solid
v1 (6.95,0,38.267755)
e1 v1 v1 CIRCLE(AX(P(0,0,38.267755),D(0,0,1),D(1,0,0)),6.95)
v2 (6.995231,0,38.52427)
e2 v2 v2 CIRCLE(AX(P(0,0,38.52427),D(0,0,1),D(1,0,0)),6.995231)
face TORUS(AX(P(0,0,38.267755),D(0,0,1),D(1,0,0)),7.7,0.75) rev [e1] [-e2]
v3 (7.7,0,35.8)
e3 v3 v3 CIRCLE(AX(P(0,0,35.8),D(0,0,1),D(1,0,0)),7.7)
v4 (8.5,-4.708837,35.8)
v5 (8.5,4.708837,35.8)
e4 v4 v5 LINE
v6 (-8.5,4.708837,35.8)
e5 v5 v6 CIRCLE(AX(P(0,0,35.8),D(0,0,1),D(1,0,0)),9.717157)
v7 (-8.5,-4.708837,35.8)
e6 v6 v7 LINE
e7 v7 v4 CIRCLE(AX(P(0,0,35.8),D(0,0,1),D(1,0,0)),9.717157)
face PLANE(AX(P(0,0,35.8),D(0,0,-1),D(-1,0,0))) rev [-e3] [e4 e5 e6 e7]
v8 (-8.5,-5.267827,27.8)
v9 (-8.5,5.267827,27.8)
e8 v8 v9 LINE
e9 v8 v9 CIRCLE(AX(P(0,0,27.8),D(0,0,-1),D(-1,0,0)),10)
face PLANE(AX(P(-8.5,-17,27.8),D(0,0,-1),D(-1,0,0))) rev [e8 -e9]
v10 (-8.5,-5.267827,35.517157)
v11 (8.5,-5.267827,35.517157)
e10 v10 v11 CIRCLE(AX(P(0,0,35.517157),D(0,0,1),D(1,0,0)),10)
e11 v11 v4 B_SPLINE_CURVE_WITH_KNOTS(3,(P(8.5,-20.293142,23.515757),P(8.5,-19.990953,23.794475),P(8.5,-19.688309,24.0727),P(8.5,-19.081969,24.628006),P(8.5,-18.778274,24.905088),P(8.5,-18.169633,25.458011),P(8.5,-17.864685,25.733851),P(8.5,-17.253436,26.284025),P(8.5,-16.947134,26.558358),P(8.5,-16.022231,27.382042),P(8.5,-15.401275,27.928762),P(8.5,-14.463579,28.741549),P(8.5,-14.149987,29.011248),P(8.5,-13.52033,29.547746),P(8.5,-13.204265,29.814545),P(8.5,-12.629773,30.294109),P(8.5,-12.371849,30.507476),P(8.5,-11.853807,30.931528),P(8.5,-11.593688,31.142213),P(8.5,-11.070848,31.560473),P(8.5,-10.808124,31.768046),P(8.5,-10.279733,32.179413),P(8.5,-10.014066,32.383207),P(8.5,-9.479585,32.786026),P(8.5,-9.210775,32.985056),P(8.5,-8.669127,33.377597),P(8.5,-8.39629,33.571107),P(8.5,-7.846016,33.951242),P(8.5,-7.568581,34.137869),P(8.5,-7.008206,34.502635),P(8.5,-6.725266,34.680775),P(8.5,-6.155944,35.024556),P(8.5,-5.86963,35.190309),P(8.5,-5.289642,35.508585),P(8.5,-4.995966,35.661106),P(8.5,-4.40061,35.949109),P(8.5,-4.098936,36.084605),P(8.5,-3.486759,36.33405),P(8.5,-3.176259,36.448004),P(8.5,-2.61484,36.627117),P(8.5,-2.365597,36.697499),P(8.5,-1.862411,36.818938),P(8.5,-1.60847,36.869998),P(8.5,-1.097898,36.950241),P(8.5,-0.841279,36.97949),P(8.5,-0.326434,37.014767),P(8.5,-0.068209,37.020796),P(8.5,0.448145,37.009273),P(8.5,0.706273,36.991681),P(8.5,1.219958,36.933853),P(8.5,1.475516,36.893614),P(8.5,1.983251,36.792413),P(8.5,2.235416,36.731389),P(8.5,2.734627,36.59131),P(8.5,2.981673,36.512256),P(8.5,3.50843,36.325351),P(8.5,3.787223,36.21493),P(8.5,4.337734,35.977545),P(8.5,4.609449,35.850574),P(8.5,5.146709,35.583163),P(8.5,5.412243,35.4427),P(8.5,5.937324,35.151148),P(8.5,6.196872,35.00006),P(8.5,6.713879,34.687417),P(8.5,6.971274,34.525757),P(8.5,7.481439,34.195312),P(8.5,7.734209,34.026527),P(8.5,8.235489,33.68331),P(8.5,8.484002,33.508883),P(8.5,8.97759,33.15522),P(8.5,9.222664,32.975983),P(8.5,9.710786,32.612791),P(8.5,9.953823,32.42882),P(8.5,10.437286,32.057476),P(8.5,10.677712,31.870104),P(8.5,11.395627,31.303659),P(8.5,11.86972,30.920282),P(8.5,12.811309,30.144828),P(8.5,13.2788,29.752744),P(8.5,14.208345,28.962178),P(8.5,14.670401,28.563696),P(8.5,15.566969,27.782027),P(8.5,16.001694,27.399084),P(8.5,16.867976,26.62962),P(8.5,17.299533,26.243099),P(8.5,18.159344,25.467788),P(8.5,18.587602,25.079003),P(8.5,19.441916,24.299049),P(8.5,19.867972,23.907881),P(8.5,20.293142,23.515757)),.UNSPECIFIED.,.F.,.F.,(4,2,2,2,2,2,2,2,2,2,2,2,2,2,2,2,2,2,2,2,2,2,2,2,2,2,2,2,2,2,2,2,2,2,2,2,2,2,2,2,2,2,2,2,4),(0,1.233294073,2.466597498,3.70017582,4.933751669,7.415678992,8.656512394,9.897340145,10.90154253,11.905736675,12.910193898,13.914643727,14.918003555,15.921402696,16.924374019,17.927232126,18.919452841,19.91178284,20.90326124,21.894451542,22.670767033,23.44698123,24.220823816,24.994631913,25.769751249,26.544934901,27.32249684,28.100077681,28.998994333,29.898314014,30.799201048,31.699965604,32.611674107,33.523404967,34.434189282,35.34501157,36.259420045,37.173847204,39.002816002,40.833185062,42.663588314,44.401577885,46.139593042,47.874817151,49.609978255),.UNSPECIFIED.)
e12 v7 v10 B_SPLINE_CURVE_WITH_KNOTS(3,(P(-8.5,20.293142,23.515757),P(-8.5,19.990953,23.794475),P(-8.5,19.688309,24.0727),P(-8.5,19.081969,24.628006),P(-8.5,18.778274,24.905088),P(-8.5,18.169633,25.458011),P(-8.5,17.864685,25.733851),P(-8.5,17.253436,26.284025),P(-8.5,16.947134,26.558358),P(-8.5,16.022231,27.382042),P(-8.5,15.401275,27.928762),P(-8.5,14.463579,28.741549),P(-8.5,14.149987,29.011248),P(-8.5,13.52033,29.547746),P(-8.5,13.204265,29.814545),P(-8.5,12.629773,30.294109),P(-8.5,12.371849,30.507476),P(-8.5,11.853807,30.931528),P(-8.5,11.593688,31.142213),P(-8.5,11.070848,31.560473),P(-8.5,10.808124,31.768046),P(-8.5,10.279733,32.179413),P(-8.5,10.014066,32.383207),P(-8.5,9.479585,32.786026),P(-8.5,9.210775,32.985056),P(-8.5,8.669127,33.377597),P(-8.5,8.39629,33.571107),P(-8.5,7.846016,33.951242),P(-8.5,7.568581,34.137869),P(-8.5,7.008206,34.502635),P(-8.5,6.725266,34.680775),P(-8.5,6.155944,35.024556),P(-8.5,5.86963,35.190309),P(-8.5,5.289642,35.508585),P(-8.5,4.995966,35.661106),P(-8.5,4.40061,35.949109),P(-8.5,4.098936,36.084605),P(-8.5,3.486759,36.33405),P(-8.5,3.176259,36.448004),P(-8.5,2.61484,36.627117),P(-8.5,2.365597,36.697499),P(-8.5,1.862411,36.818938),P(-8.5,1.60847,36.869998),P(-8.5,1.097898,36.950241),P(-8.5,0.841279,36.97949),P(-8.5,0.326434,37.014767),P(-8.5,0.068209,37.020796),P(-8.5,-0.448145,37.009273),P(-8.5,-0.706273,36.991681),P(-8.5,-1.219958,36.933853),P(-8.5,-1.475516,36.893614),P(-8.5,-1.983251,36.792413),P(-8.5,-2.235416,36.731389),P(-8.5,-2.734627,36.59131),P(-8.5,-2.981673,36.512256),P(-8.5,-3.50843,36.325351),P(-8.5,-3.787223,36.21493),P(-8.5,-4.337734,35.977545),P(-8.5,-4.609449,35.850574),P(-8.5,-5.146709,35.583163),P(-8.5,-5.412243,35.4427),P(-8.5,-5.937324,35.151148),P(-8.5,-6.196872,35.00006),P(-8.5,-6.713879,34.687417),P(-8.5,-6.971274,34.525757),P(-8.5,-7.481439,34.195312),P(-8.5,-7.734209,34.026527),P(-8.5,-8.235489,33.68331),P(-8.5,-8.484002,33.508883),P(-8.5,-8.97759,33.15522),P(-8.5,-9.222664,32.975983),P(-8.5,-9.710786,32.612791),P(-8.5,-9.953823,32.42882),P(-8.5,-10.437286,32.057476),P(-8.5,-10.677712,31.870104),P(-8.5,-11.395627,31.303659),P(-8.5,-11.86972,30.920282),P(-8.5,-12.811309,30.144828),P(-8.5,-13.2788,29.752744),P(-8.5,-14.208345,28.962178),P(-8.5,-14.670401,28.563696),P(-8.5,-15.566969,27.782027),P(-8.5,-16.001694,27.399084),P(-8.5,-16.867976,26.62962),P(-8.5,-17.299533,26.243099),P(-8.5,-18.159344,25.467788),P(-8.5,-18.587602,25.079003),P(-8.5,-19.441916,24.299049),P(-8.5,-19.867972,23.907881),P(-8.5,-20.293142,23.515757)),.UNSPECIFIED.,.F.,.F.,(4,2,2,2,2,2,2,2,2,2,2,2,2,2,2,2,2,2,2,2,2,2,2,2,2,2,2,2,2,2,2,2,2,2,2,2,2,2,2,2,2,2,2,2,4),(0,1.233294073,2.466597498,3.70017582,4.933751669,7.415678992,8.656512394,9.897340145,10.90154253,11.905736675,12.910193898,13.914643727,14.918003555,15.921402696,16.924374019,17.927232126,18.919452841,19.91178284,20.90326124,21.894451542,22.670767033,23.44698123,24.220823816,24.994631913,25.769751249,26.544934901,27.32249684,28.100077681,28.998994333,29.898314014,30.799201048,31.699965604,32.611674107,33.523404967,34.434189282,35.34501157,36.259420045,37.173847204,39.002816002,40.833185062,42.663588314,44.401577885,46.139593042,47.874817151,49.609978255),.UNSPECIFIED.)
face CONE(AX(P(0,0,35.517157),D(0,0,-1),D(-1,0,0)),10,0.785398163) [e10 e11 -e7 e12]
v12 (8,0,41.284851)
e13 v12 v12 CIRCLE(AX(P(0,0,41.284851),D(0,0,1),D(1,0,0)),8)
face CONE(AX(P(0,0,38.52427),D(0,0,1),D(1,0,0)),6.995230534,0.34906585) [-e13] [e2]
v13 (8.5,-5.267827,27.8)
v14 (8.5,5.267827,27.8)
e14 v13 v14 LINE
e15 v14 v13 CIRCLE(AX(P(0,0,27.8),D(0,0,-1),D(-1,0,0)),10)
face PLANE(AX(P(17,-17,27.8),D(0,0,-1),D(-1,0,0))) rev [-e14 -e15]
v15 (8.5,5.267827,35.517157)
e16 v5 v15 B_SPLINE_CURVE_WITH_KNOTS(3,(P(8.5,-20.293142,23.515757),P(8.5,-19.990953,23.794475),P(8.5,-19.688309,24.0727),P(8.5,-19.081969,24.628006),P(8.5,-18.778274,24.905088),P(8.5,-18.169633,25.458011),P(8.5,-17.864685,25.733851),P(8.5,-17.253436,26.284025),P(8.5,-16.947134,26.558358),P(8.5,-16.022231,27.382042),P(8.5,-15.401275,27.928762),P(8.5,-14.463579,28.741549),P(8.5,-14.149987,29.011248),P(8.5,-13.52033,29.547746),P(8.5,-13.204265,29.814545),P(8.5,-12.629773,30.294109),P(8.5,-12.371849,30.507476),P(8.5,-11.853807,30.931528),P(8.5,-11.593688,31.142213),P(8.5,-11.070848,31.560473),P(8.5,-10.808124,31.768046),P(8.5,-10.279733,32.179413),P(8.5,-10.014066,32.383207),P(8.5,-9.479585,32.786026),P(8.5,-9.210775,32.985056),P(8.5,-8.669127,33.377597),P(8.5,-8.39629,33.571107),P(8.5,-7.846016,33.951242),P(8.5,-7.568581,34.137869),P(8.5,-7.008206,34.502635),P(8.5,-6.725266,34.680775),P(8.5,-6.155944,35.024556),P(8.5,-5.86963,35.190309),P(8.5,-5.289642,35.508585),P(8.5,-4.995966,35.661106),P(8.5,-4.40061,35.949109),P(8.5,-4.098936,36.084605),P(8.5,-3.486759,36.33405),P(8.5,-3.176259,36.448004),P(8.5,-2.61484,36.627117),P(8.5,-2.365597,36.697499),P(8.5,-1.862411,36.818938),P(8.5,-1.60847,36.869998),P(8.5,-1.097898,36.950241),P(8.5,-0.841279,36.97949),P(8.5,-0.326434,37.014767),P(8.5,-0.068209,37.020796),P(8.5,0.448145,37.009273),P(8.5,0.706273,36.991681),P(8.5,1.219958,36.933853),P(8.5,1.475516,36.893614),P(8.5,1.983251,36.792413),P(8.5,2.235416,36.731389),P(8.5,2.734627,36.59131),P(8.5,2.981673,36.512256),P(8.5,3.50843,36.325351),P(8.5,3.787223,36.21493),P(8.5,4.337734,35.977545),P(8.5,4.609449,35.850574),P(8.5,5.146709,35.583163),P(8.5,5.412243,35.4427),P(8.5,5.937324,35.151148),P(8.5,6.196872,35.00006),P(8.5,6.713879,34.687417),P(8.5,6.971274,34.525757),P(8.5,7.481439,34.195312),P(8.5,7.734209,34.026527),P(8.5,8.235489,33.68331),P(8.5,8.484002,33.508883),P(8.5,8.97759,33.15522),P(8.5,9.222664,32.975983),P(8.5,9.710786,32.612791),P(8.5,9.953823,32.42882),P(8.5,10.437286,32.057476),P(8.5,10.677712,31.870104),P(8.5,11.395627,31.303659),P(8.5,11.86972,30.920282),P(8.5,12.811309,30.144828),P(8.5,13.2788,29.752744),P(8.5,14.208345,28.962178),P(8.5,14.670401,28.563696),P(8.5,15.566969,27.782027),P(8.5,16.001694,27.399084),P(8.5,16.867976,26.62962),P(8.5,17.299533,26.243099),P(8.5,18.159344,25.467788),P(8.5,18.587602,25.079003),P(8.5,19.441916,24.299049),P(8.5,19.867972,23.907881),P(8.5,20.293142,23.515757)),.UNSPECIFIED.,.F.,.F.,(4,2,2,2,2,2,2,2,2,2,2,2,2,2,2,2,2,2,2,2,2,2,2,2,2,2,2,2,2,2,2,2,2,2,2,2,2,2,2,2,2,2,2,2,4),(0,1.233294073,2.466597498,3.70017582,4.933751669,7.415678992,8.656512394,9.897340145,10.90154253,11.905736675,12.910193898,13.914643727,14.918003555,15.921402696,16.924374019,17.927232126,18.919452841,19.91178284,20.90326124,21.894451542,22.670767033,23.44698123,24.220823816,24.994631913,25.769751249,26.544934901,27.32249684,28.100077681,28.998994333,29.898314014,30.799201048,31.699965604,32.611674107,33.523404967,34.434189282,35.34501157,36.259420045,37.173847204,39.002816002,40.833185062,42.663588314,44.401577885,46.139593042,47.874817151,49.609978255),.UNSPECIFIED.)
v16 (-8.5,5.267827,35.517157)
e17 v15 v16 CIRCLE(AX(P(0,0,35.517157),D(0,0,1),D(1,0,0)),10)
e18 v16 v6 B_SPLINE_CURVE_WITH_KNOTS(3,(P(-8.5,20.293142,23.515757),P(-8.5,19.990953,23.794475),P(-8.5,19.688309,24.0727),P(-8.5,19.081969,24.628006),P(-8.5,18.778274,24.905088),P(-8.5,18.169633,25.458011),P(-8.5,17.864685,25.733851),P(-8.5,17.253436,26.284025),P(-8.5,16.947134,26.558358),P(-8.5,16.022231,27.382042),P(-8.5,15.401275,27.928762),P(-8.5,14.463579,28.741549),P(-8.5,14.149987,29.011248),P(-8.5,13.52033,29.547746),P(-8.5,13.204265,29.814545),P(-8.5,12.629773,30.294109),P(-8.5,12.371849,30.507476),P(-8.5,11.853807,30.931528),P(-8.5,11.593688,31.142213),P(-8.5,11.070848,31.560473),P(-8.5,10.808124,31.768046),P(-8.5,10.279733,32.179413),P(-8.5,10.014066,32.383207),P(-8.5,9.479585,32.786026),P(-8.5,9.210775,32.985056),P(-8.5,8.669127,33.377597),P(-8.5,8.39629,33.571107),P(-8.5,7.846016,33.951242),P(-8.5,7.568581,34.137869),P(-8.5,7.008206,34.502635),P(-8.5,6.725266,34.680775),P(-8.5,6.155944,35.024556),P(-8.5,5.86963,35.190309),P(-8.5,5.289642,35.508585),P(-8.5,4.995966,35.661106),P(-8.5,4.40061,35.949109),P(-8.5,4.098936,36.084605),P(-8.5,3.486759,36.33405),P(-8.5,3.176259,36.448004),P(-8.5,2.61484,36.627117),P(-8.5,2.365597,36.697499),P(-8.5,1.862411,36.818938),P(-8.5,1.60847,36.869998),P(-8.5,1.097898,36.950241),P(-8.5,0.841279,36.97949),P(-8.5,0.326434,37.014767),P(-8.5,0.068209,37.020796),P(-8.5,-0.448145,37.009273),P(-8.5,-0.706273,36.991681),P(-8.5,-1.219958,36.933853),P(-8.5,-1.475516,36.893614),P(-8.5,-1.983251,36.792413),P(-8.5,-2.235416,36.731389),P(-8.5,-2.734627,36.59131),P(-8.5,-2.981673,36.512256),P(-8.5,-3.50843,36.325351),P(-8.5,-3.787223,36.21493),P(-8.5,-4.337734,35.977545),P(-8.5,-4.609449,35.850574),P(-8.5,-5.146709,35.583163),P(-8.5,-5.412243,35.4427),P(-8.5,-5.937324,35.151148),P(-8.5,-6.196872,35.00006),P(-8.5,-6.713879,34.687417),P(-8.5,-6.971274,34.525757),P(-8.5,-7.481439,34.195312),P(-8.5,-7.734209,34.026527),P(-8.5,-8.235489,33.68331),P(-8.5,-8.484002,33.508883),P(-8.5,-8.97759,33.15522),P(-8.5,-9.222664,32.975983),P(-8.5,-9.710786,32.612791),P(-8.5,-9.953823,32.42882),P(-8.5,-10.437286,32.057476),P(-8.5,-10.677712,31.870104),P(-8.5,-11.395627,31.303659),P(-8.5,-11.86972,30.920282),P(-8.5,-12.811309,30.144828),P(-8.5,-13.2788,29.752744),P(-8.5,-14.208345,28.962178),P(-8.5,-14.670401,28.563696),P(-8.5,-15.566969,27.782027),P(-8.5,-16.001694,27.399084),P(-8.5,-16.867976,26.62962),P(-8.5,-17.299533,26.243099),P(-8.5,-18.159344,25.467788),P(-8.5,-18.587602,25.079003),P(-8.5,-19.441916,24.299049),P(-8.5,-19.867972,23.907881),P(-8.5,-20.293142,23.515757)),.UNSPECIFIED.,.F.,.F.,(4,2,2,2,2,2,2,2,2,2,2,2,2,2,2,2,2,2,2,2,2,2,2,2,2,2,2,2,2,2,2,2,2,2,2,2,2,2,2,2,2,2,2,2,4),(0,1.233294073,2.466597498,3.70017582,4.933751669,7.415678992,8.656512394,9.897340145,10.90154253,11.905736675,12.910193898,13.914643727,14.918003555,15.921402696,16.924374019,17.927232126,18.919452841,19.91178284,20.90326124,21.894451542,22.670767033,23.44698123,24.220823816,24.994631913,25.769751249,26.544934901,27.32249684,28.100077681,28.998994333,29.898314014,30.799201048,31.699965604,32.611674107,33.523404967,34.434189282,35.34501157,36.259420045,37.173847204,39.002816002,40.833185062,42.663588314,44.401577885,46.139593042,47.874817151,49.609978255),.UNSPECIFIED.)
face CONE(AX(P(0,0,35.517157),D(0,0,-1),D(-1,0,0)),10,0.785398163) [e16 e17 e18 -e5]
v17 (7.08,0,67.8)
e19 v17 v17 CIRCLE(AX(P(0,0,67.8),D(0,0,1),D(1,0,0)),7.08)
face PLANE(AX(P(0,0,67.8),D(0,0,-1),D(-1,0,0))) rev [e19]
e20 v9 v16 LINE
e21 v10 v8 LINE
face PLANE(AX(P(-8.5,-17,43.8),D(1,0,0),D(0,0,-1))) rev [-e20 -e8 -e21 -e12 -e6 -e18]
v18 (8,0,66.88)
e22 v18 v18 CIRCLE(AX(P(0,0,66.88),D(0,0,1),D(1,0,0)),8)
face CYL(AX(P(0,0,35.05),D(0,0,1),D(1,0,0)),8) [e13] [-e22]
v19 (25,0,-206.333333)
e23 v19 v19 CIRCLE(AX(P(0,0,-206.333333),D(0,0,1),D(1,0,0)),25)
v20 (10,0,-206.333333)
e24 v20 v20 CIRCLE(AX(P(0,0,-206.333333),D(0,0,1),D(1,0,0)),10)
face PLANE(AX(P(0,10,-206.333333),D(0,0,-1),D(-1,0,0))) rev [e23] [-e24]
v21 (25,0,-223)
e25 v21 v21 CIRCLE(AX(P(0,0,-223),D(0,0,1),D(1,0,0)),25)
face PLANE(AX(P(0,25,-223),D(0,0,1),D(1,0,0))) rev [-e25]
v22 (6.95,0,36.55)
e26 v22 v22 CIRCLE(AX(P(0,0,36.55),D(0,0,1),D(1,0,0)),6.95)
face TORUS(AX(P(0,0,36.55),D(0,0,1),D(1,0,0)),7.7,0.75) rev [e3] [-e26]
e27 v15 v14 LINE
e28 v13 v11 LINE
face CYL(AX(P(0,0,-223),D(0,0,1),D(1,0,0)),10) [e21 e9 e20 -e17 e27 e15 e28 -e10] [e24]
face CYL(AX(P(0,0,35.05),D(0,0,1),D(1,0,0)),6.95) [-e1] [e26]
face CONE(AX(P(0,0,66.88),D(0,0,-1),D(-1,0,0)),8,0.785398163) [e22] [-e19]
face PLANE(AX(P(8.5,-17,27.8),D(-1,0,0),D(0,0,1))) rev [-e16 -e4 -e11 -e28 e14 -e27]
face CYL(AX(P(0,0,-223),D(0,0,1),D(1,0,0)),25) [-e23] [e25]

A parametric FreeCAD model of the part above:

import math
import FreeCAD as App
import Part
import Sketcher
from FreeCAD import Vector
Q = App.Units.Quantity


def add_polygon(sketch, points):
    """Adds a closed chain of lines whose ends are joined by coincident constraints."""
    first, n = sketch.GeometryCount, len(points)
    for a, b in zip(points, points[1:] + points[:1]):
        sketch.addGeometry(Part.LineSegment(App.Vector(*a, 0), App.Vector(*b, 0)), False)
    for i in range(n):
        sketch.addConstraint(Sketcher.Constraint("Coincident", first + i, 2, first + (i + 1) % n, 1))

doc = App.newDocument("Part")
body = doc.addObject("PartDesign::Body", "Body")

sketch1 = body.newObject("Sketcher::SketchObject", "Sketch")
sketch1.AttachmentSupport = (doc.getObject("YZ_Plane"), [""])
sketch1.MapMode = "FlatFace"
add_polygon(sketch1, [(9.72, 35.8), (0, 35.8), (0, -223), (25, -223), (25, -206.33), (10, -206.33), (10, 35.52)])
sketch1.addConstraint(Sketcher.Constraint("Horizontal", 0))
sketch1.addConstraint(Sketcher.Constraint("Vertical", 1))
sketch1.addConstraint(Sketcher.Constraint("Horizontal", 2))
sketch1.addConstraint(Sketcher.Constraint("Vertical", 3))
sketch1.addConstraint(Sketcher.Constraint("Horizontal", 4))
sketch1.addConstraint(Sketcher.Constraint("Vertical", 5))
sketch1.addConstraint(Sketcher.Constraint("PointOnObject", 0, 2, -2))
sketch1.addConstraint(Sketcher.Constraint("DistanceX", 2, 1, 2, 2, 25.0))
sketch1.addConstraint(Sketcher.Constraint("DistanceX", 4, 2, 4, 1, 15.0))
sketch1.addConstraint(Sketcher.Constraint("Angle", 6, Q("135 deg")))
sketch1.addConstraint(Sketcher.Constraint("DistanceY", 1, 2, 1, 1, 258.8))
sketch1.addConstraint(Sketcher.Constraint("DistanceY", 1, 2, -1, 1, 223.0))
sketch1.addConstraint(Sketcher.Constraint("Distance", 6, 0.4))
sketch1.addConstraint(Sketcher.Constraint("DistanceY", 5, 1, 5, 2, 241.850491))
revolution = body.newObject("PartDesign::Revolution", "Revolution")
revolution.Profile = sketch1
revolution.ReferenceAxis = (sketch1, ["V_Axis"])
revolution.Angle = 360

sketch2 = body.newObject("Sketcher::SketchObject", "Sketch001")
sketch2.AttachmentSupport = (doc.getObject("XZ_Plane"), [""])
sketch2.MapMode = "FlatFace"
add_polygon(sketch2, [(-17, 62), (17, 62), (17, 28), (8, 28), (8, 44), (-8, 44), (-8, 28), (-17, 28)])
sketch2.addConstraint(Sketcher.Constraint("Horizontal", 0))
sketch2.addConstraint(Sketcher.Constraint("Vertical", 1))
sketch2.addConstraint(Sketcher.Constraint("Horizontal", 2))
sketch2.addConstraint(Sketcher.Constraint("Vertical", 3))
sketch2.addConstraint(Sketcher.Constraint("Horizontal", 4))
sketch2.addConstraint(Sketcher.Constraint("Vertical", 5))
sketch2.addConstraint(Sketcher.Constraint("Horizontal", 6))
sketch2.addConstraint(Sketcher.Constraint("Vertical", 7))
sketch2.addConstraint(Sketcher.Constraint("Symmetric", 2, 2, 5, 2, -2))
sketch2.addConstraint(Sketcher.Constraint("Equal", 2, 6))
sketch2.addConstraint(Sketcher.Constraint("Equal", 0, 1))
sketch2.addConstraint(Sketcher.Constraint("DistanceX", 0, 1, 0, 2, 34.0))
sketch2.addConstraint(Sketcher.Constraint("DistanceX", 4, 2, 4, 1, 17.0))
sketch2.addConstraint(Sketcher.Constraint("DistanceY", 3, 1, 3, 2, 16.0))
sketch2.addConstraint(Sketcher.Constraint("DistanceY", -1, 1, 0, 2, 61.8))
pocket1 = body.newObject("PartDesign::Pocket", "Pocket")
pocket1.Profile = sketch2
pocket1.Type = "ThroughAll"
pocket1.Midplane = True

sketch3 = body.newObject("Sketcher::SketchObject", "Sketch002")
sketch3.AttachmentSupport = (doc.getObject("YZ_Plane"), [""])
sketch3.MapMode = "FlatFace"
sketch3.addGeometry(Part.LineSegment(Vector(7.08, 67.8, 0), Vector(0, 67.8, 0)), False)
sketch3.addGeometry(Part.LineSegment(Vector(0, 67.8, 0), Vector(0, 35.05, 0)), False)
sketch3.addGeometry(Part.LineSegment(Vector(0, 35.05, 0), Vector(7.7, 35.05, 0)), False)
sketch3.addGeometry(Part.LineSegment(Vector(7.7, 35.05, 0), Vector(7.7, 35.8, 0)), False)
sketch3.addGeometry(Part.ArcOfCircle(Part.Circle(Vector(7.7, 36.55, 0), Vector(0, 0, 1), 0.75), math.radians(180), math.radians(270)), False)
sketch3.addGeometry(Part.LineSegment(Vector(6.95, 36.55, 0), Vector(6.95, 38.27, 0)), False)
sketch3.addGeometry(Part.ArcOfCircle(Part.Circle(Vector(7.7, 38.27, 0), Vector(0, 0, 1), 0.75), math.radians(160), math.radians(180)), False)
sketch3.addGeometry(Part.LineSegment(Vector(7, 38.52, 0), Vector(8, 41.28, 0)), False)
sketch3.addGeometry(Part.LineSegment(Vector(8, 41.28, 0), Vector(8, 66.88, 0)), False)
sketch3.addGeometry(Part.LineSegment(Vector(8, 66.88, 0), Vector(7.08, 67.8, 0)), False)
sketch3.addConstraint(Sketcher.Constraint("Coincident", 0, 2, 1, 1))
sketch3.addConstraint(Sketcher.Constraint("Coincident", 1, 2, 2, 1))
sketch3.addConstraint(Sketcher.Constraint("Coincident", 2, 2, 3, 1))
sketch3.addConstraint(Sketcher.Constraint("Coincident", 3, 2, 4, 2))
sketch3.addConstraint(Sketcher.Constraint("Tangent", 4, 1, 5, 1))
sketch3.addConstraint(Sketcher.Constraint("Tangent", 5, 2, 6, 2))
sketch3.addConstraint(Sketcher.Constraint("Tangent", 6, 1, 7, 1))
sketch3.addConstraint(Sketcher.Constraint("Coincident", 7, 2, 8, 1))
sketch3.addConstraint(Sketcher.Constraint("Coincident", 8, 2, 9, 1))
sketch3.addConstraint(Sketcher.Constraint("Coincident", 9, 2, 0, 1))
sketch3.addConstraint(Sketcher.Constraint("Horizontal", 0))
sketch3.addConstraint(Sketcher.Constraint("Vertical", 1))
sketch3.addConstraint(Sketcher.Constraint("Horizontal", 2))
sketch3.addConstraint(Sketcher.Constraint("Vertical", 3))
sketch3.addConstraint(Sketcher.Constraint("Vertical", 5))
sketch3.addConstraint(Sketcher.Constraint("Vertical", 8))
sketch3.addConstraint(Sketcher.Constraint("Equal", 4, 6))
sketch3.addConstraint(Sketcher.Constraint("PointOnObject", 0, 2, -2))
sketch3.addConstraint(Sketcher.Constraint("Vertical", 6, 3, 2, 2))
sketch3.addConstraint(Sketcher.Constraint("Angle", 7, Q("70 deg")))
sketch3.addConstraint(Sketcher.Constraint("Angle", 9, Q("135 deg")))
sketch3.addConstraint(Sketcher.Constraint("Radius", 4, 0.75))
sketch3.addConstraint(Sketcher.Constraint("DistanceX", 2, 1, 2, 2, 7.7))
sketch3.addConstraint(Sketcher.Constraint("DistanceX", -1, 1, 7, 2, 8.0))
sketch3.addConstraint(Sketcher.Constraint("DistanceY", 3, 2, 0, 2, 32.0))
sketch3.addConstraint(Sketcher.Constraint("DistanceX", 0, 2, 0, 1, 7.08))
sketch3.addConstraint(Sketcher.Constraint("DistanceY", 1, 2, 1, 1, 32.75))
sketch3.addConstraint(Sketcher.Constraint("DistanceY", -1, 1, 0, 2, 67.8))
sketch3.addConstraint(Sketcher.Constraint("DistanceY", 8, 1, 8, 2, 25.595149))
revolution2 = body.newObject("PartDesign::Revolution", "Revolution001")
revolution2.Profile = sketch3
revolution2.ReferenceAxis = (sketch3, ["V_Axis"])
revolution2.Angle = 360

doc.recompute()
